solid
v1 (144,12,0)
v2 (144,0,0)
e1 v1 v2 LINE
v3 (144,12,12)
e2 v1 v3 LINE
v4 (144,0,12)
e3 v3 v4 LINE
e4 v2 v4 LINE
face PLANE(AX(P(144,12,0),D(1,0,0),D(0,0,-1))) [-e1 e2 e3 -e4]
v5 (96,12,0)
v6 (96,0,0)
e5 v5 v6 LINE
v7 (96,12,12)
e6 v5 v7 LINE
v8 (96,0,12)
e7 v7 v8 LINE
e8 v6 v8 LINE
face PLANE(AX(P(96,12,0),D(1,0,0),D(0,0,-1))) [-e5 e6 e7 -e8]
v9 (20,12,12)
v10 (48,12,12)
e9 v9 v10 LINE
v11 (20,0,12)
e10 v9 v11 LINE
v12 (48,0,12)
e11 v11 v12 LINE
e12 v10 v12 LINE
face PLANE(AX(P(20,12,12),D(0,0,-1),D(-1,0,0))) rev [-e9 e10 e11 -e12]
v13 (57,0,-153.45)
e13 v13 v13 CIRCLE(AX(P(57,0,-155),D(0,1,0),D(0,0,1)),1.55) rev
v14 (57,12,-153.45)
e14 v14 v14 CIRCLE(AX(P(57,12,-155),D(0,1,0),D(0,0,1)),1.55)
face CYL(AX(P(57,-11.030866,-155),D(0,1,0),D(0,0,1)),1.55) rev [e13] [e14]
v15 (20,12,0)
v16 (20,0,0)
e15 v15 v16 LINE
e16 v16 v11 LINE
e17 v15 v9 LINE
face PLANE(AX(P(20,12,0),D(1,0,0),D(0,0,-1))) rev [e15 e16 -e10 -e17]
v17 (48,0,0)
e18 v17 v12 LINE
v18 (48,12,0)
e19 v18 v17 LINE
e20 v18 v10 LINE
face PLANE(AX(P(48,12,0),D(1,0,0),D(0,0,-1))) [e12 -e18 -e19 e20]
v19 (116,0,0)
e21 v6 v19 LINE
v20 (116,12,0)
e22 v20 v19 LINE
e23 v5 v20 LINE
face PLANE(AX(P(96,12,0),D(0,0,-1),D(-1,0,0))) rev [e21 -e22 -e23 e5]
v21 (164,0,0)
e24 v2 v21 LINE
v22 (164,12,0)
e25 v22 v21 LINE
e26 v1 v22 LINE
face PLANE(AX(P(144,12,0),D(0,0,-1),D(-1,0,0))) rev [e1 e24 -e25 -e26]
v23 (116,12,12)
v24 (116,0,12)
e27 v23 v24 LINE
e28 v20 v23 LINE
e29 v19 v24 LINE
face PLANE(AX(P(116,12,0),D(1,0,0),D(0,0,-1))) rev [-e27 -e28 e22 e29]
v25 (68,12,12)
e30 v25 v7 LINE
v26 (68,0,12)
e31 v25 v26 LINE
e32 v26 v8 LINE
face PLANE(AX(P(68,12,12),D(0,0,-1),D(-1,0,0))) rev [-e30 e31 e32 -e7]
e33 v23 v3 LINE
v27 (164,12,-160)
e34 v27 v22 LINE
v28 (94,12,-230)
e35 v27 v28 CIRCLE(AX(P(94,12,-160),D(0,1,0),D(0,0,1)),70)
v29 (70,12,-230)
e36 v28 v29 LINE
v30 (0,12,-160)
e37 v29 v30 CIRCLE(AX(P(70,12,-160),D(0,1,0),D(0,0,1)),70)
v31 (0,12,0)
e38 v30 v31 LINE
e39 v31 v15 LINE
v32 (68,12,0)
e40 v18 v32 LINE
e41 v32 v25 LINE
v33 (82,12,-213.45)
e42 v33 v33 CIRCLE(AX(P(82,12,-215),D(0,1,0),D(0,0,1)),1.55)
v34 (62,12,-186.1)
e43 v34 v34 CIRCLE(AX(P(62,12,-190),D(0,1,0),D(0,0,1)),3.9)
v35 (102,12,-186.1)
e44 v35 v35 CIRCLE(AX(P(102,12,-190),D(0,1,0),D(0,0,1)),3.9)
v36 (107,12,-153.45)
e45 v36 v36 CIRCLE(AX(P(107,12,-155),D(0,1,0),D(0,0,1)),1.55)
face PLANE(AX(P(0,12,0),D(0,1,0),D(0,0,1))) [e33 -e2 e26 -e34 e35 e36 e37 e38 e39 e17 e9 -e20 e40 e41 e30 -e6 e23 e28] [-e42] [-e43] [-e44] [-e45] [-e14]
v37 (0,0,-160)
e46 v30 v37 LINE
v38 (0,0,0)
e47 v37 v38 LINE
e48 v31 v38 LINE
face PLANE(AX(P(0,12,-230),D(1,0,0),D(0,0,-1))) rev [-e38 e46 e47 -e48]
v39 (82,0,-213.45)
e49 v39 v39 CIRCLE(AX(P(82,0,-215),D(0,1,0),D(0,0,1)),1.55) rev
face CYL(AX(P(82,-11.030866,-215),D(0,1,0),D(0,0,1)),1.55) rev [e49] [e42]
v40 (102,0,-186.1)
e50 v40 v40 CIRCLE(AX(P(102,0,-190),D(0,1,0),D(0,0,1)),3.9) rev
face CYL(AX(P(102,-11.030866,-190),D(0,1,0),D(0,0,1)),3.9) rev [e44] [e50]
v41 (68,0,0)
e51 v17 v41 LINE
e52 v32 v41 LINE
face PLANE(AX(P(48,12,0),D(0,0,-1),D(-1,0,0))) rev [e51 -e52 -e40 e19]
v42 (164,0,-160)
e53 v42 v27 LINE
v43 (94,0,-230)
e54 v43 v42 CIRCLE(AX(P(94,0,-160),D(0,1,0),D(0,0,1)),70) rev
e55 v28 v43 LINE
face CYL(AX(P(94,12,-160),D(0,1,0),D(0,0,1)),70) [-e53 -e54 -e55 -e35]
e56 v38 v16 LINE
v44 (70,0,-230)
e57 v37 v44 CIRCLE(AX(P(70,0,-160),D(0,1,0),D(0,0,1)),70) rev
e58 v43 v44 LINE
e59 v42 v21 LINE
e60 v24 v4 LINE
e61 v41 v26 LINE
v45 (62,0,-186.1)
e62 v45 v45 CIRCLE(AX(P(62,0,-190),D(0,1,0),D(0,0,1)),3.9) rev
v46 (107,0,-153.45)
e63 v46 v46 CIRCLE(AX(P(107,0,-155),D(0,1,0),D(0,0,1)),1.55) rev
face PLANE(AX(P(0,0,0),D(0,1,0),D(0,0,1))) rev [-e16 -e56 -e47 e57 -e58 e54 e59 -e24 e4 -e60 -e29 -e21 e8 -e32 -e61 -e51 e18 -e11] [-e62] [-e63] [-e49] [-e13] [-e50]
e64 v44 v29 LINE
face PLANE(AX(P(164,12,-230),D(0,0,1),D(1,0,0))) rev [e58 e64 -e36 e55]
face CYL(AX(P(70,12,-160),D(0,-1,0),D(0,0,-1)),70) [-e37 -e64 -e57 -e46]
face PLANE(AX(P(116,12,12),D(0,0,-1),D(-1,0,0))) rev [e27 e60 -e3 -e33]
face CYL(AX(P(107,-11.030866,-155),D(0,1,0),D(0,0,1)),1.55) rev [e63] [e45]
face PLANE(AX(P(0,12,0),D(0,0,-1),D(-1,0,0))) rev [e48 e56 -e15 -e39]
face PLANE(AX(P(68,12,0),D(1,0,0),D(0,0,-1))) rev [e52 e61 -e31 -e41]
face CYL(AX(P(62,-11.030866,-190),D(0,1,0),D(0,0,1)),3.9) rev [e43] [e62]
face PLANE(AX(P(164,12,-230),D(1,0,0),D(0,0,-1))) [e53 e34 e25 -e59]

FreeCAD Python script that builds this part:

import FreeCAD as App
import Part
import Sketcher

V = App.Vector
Q = App.Units.Quantity


def edges_at(feature, points):
    """Names of the edges that pass closest to the given points."""
    edges = feature.Shape.Edges
    near = lambda p: min(range(len(edges)), key=lambda i: edges[i].distToShape(Part.Vertex(*p))[0])
    return sorted({f"Edge{near(p) + 1}" for p in points})

doc = App.newDocument("Part")
body = doc.addObject("PartDesign::Body", "Body")

# Sketch on XZ plane
sketch1 = body.newObject("Sketcher::SketchObject", "Sketch")
sketch1.AttachmentSupport = (doc.getObject("XZ_Plane"), [""])
sketch1.MapMode = "FlatFace"
sketch1.addGeometry([
    Part.LineSegment(V(0, 0, 0), V(20, 0, 0)),  # 0
    Part.LineSegment(V(20, 0, 0), V(20, 12, 0)),  # 1
    Part.LineSegment(V(20, 12, 0), V(48, 12, 0)),  # 2
    Part.LineSegment(V(48, 12, 0), V(48, 0, 0)),  # 3
    Part.LineSegment(V(48, 0, 0), V(68, 0, 0)),  # 4
    Part.LineSegment(V(68, 0, 0), V(68, 12, 0)),  # 5
    Part.LineSegment(V(68, 12, 0), V(96, 12, 0)),  # 6
    Part.LineSegment(V(96, 12, 0), V(96, 0, 0)),  # 7
    Part.LineSegment(V(96, 0, 0), V(116, 0, 0)),  # 8
    Part.LineSegment(V(116, 0, 0), V(116, 12, 0)),  # 9
    Part.LineSegment(V(116, 12, 0), V(144, 12, 0)),  # 10
    Part.LineSegment(V(144, 12, 0), V(144, 0, 0)),  # 11
    Part.LineSegment(V(144, 0, 0), V(164, 0, 0)),  # 12
    Part.LineSegment(V(164, 0, 0), V(164, -230, 0)),  # 13
    Part.LineSegment(V(164, -230, 0), V(0, -230, 0)),  # 14
    Part.LineSegment(V(0, -230, 0), V(0, 0, 0)),  # 15
], False)
sketch1.addConstraint([
    Sketcher.Constraint("Coincident", 0, 2, 1, 1),
    Sketcher.Constraint("Coincident", 1, 2, 2, 1),
    Sketcher.Constraint("Coincident", 2, 2, 3, 1),
    Sketcher.Constraint("Coincident", 3, 2, 4, 1),
    Sketcher.Constraint("Coincident", 4, 2, 5, 1),
    Sketcher.Constraint("Coincident", 5, 2, 6, 1),
    Sketcher.Constraint("Coincident", 6, 2, 7, 1),
    Sketcher.Constraint("Coincident", 7, 2, 8, 1),
    Sketcher.Constraint("Coincident", 8, 2, 9, 1),
    Sketcher.Constraint("Coincident", 9, 2, 10, 1),
    Sketcher.Constraint("Coincident", 10, 2, 11, 1),
    Sketcher.Constraint("Coincident", 11, 2, 12, 1),
    Sketcher.Constraint("Coincident", 12, 2, 13, 1),
    Sketcher.Constraint("Coincident", 13, 2, 14, 1),
    Sketcher.Constraint("Coincident", 14, 2, 15, 1),
    Sketcher.Constraint("Coincident", 15, 2, 0, 1),
    Sketcher.Constraint("Horizontal", 0),
    Sketcher.Constraint("Vertical", 1),
    Sketcher.Constraint("Horizontal", 2),
    Sketcher.Constraint("Vertical", 3),
    Sketcher.Constraint("Horizontal", 4),
    Sketcher.Constraint("Vertical", 5),
    Sketcher.Constraint("Horizontal", 6),
    Sketcher.Constraint("Vertical", 7),
    Sketcher.Constraint("Horizontal", 8),
    Sketcher.Constraint("Vertical", 9),
    Sketcher.Constraint("Horizontal", 10),
    Sketcher.Constraint("Vertical", 11),
    Sketcher.Constraint("Horizontal", 12),
    Sketcher.Constraint("Vertical", 13),
    Sketcher.Constraint("Horizontal", 14),
    Sketcher.Constraint("Vertical", 15),
    Sketcher.Constraint("Coincident", 15, 2, -1, 1),
    Sketcher.Constraint("PointOnObject", 3, 2, -1),
    Sketcher.Constraint("PointOnObject", 7, 2, -1),
    Sketcher.Constraint("PointOnObject", 11, 2, -1),
    Sketcher.Constraint("Horizontal", 2, 2, 5, 2),
    Sketcher.Constraint("Horizontal", 6, 2, 9, 2),
    Sketcher.Constraint("Equal", 0, 4),
    Sketcher.Constraint("Equal", 2, 6),
    Sketcher.Constraint("Equal", 4, 8),
    Sketcher.Constraint("Equal", 6, 10),
    Sketcher.Constraint("Equal", 8, 12),
    Sketcher.Constraint("DistanceX", 0, 1, 0, 2, Q("20 mm")),
    Sketcher.Constraint("DistanceX", 2, 1, 2, 2, Q("28 mm")),
    Sketcher.Constraint("DistanceY", 1, 1, 1, 2, Q("12 mm")),
    Sketcher.Constraint("DistanceY", 13, 2, 13, 1, Q("230 mm")),
])
pad1 = body.newObject("PartDesign::Pad", "Pad")
pad1.Profile = sketch1
pad1.Length = 12
pad1.Reversed = True

# Sketch on XZ plane
sketch2 = body.newObject("Sketcher::SketchObject", "Sketch001")
sketch2.AttachmentSupport = (doc.getObject("XZ_Plane"), [""])
sketch2.MapMode = "FlatFace"
sketch2.AttachmentOffset = App.Placement(V(0, 0, -12), App.Rotation())
sketch2.addGeometry([
    Part.Circle(V(82, -215, 0), V(0, 0, 1), 1.55),  # 0
    Part.Circle(V(57, -155, 0), V(0, 0, 1), 1.55),  # 1
    Part.Circle(V(107, -155, 0), V(0, 0, 1), 1.55),  # 2
    Part.Circle(V(62, -190, 0), V(0, 0, 1), 3.9),  # 3
    Part.Circle(V(102, -190, 0), V(0, 0, 1), 3.9),  # 4
], False)
sketch2.addConstraint([
    Sketcher.Constraint("Equal", 0, 1),
    Sketcher.Constraint("Equal", 1, 2),
    Sketcher.Constraint("Equal", 3, 4),
    Sketcher.Constraint("Horizontal", 1, 3, 2, 3),
    Sketcher.Constraint("Horizontal", 3, 3, 4, 3),
    Sketcher.Constraint("Diameter", 0, Q("3.1 mm")),
    Sketcher.Constraint("Diameter", 3, Q("7.8 mm")),
    Sketcher.Constraint("DistanceX", -1, 1, 0, 3, Q("82 mm")),
    Sketcher.Constraint("DistanceY", 0, 3, -1, 1, Q("215 mm")),
    Sketcher.Constraint("DistanceX", -1, 1, 1, 3, Q("57 mm")),
    Sketcher.Constraint("DistanceY", 1, 3, -1, 1, Q("155 mm")),
    Sketcher.Constraint("DistanceX", -1, 1, 2, 3, Q("107 mm")),
    Sketcher.Constraint("DistanceX", -1, 1, 3, 3, Q("62 mm")),
    Sketcher.Constraint("DistanceY", 3, 3, -1, 1, Q("190 mm")),
    Sketcher.Constraint("DistanceX", -1, 1, 4, 3, Q("102 mm")),
])
pocket1 = body.newObject("PartDesign::Pocket", "Pocket")
pocket1.Profile = sketch2
pocket1.Length = 12
pocket1.Reversed = True
doc.recompute()

fillet = body.newObject("PartDesign::Fillet", "Fillet")
fillet.Base = (pocket1, edges_at(pocket1, [(164, 6, -230), (0, 6, -230)]))
fillet.Radius = 70

doc.recompute()
